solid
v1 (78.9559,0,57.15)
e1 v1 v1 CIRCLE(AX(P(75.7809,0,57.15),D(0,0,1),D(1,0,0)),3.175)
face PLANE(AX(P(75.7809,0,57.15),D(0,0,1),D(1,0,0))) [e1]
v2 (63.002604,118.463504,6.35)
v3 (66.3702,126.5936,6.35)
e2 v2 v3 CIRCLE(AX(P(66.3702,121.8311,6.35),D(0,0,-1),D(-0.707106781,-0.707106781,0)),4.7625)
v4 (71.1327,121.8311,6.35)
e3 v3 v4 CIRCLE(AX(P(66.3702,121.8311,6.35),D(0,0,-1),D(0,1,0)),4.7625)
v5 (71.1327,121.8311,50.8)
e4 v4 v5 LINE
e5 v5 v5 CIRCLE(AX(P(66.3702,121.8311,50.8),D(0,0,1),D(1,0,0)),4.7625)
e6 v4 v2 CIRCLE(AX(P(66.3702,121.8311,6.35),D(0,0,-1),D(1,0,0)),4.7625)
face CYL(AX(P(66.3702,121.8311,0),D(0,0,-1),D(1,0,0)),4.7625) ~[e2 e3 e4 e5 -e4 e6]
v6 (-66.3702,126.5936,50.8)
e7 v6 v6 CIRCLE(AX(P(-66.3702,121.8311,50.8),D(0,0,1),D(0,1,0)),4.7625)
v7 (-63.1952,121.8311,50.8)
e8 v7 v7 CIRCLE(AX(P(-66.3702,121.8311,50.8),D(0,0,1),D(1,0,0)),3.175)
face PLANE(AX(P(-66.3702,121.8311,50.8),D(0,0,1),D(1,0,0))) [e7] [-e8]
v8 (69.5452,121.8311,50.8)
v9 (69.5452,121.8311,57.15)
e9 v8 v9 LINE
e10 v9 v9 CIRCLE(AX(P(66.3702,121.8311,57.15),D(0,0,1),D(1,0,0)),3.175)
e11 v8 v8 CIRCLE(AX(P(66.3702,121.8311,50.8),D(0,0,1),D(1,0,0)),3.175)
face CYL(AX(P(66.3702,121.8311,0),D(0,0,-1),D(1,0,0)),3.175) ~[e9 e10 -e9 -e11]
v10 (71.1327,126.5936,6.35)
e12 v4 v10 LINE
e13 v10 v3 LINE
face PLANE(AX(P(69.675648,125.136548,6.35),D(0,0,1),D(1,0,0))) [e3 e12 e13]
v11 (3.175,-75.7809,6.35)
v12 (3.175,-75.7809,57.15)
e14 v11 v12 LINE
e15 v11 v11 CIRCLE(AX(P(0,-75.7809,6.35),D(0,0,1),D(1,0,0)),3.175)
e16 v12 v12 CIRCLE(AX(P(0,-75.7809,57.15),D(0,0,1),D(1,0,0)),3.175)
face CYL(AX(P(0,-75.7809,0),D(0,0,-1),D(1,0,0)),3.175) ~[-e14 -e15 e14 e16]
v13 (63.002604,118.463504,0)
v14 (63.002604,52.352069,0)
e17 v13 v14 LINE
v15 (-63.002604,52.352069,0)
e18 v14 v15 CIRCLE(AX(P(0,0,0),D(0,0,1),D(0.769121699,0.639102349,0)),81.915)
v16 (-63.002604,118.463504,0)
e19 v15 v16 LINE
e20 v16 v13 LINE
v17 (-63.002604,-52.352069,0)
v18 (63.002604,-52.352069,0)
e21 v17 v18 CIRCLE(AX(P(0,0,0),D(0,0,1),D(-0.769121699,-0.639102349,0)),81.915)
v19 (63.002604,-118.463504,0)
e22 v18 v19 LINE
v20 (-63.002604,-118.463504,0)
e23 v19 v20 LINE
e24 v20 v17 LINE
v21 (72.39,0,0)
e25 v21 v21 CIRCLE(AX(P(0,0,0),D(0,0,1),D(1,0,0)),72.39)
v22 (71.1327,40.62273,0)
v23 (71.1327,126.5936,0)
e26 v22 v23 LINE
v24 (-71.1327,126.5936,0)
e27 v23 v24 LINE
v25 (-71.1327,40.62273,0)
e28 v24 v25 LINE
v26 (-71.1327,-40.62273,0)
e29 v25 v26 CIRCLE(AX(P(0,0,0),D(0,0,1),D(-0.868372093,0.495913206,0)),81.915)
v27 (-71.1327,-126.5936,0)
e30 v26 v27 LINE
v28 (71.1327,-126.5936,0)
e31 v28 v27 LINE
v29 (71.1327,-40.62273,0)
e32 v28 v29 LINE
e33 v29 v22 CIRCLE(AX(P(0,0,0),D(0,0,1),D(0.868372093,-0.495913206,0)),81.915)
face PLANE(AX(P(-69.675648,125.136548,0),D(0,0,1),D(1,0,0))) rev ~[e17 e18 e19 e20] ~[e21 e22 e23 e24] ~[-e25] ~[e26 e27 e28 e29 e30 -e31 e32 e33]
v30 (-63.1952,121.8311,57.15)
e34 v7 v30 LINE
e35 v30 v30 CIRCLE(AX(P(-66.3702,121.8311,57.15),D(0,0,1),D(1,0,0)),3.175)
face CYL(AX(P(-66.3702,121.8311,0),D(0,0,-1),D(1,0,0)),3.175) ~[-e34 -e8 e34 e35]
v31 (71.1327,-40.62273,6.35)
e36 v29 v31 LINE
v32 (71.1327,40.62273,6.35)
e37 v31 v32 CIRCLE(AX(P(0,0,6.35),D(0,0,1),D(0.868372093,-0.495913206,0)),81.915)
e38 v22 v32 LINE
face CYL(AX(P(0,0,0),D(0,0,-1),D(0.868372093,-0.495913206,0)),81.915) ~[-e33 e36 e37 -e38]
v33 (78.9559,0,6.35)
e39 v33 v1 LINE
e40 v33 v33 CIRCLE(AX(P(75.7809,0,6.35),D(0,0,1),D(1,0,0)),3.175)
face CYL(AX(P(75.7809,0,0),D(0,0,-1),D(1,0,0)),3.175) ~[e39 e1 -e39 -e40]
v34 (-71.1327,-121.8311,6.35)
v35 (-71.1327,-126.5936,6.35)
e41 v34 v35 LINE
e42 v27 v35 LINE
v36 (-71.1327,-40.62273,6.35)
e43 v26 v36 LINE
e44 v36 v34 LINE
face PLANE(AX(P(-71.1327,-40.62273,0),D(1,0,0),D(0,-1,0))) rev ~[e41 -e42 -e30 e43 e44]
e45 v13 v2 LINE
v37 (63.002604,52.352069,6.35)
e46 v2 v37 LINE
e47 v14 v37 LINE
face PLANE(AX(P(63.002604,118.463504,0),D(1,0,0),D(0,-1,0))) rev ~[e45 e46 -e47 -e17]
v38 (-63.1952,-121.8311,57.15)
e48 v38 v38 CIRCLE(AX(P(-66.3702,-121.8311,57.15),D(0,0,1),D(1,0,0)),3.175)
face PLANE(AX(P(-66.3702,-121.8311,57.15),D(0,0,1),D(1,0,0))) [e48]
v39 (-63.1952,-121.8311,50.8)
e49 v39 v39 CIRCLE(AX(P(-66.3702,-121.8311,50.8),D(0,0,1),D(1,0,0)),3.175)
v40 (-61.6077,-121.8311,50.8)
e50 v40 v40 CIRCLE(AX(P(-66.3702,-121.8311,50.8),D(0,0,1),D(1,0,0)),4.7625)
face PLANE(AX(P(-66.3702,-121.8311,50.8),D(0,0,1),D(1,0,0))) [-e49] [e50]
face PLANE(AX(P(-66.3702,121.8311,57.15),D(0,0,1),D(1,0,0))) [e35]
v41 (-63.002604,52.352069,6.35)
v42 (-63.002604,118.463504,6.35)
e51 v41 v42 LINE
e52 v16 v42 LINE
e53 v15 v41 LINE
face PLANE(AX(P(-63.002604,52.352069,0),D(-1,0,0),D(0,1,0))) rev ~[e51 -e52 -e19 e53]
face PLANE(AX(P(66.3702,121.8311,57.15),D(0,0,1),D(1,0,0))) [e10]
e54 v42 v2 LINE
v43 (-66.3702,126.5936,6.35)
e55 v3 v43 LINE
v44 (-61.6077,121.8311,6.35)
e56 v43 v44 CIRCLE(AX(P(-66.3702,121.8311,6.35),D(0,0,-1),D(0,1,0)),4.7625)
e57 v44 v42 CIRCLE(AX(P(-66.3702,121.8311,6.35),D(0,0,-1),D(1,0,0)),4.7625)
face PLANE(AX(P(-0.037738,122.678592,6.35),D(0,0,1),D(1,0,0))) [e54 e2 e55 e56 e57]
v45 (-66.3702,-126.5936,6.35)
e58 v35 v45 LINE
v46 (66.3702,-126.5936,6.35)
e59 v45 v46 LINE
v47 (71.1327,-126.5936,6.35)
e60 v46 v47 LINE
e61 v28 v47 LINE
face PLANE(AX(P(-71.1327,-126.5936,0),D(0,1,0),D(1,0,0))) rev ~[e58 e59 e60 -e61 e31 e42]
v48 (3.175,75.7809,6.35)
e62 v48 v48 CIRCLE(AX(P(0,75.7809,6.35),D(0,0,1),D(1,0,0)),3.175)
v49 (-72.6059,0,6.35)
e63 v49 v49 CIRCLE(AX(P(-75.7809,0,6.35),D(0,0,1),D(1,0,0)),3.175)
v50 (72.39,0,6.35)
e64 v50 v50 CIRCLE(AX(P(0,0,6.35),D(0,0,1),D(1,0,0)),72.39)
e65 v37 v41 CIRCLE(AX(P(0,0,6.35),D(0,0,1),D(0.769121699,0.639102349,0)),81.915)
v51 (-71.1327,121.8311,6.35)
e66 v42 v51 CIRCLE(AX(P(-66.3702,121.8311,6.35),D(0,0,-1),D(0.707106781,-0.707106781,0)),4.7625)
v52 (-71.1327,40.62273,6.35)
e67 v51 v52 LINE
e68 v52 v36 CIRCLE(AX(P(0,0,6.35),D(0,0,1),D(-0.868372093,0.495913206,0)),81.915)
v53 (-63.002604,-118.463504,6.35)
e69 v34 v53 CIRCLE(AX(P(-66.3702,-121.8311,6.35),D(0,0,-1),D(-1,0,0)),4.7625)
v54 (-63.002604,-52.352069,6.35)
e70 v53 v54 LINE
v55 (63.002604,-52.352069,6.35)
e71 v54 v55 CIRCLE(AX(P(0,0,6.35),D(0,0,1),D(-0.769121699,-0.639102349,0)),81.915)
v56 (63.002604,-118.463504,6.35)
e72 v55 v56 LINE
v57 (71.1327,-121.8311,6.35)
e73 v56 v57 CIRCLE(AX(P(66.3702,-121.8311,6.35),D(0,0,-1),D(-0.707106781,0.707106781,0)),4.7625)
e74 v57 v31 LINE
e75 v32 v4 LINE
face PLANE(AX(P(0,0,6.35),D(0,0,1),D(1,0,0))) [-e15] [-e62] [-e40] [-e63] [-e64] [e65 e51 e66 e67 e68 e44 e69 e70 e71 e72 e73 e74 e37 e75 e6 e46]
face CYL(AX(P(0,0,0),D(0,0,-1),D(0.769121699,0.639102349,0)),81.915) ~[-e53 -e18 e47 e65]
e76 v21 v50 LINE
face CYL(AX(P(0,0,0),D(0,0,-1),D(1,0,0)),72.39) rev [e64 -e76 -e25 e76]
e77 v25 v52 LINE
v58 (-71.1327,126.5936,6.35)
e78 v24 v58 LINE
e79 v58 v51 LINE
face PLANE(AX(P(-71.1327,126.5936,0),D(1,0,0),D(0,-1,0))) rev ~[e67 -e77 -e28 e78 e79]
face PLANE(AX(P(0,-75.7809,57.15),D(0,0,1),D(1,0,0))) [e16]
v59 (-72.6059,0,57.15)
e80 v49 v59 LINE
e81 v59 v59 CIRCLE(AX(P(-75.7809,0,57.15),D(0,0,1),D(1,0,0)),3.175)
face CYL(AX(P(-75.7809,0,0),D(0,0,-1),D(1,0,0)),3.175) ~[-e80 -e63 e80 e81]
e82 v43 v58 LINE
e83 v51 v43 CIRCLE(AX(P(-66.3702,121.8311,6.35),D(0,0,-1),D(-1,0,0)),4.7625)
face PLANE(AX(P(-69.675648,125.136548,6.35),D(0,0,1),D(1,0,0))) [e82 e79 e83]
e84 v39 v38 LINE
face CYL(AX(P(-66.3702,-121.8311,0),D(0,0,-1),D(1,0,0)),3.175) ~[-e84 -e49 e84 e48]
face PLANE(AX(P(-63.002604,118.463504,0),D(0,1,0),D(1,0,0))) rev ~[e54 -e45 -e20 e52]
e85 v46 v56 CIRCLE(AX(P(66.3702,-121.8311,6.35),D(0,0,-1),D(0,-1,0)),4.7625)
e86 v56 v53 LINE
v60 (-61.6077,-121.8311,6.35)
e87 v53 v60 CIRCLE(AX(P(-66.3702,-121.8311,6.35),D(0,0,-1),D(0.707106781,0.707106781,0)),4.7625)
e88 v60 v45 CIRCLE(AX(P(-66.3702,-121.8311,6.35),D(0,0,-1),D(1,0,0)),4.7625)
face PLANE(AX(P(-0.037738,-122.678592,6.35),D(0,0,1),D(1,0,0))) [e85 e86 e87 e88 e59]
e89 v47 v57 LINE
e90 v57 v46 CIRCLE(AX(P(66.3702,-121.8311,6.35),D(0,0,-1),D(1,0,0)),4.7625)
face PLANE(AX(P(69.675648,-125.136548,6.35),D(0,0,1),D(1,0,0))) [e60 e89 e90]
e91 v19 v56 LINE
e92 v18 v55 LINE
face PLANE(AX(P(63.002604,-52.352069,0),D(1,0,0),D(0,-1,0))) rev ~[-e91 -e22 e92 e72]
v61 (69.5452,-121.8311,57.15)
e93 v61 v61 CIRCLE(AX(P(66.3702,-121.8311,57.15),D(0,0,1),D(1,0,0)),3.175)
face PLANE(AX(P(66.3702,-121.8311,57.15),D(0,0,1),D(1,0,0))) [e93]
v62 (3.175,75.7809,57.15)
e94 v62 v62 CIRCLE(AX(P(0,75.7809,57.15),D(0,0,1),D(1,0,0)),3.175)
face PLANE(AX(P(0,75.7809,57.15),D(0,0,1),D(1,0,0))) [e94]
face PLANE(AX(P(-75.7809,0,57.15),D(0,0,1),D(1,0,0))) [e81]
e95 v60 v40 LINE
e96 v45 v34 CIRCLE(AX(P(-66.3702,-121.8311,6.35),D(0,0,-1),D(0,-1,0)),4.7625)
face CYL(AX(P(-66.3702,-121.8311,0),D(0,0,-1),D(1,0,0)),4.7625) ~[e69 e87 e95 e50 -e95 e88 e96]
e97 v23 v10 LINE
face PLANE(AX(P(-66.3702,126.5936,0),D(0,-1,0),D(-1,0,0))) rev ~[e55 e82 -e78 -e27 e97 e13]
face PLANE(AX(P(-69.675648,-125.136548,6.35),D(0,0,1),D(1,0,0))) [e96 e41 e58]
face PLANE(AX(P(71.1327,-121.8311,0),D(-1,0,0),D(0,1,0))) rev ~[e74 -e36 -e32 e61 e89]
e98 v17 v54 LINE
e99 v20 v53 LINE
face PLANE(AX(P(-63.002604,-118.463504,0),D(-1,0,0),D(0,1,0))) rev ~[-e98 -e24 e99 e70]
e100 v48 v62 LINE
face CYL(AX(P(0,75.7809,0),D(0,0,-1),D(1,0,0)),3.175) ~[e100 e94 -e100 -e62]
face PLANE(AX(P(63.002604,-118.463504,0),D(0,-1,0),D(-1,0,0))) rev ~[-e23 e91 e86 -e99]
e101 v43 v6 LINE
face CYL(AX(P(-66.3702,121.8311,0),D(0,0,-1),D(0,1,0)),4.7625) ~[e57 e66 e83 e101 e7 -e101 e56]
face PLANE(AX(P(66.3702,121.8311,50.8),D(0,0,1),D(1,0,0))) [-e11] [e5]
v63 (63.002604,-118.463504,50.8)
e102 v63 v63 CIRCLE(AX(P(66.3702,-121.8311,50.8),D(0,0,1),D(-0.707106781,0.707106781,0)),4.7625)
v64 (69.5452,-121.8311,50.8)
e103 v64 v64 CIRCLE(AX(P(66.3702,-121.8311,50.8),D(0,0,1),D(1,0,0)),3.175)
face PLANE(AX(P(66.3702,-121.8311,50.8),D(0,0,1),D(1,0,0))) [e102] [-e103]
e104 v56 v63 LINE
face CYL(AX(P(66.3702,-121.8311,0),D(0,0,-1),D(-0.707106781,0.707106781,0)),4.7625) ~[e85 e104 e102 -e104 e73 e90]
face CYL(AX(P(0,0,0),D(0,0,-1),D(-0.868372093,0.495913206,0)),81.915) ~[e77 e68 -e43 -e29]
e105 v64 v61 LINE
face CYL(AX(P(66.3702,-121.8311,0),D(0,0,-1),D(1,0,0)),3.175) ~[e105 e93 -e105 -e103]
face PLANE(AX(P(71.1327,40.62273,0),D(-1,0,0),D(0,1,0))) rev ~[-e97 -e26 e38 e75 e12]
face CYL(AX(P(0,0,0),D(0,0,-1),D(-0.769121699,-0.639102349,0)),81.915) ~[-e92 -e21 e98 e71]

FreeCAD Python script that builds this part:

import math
import FreeCAD as App
import Part
import Sketcher
from FreeCAD import Vector
Q = App.Units.Quantity

doc = App.newDocument("Part")
body = doc.addObject("PartDesign::Body", "Body")

# Sketch on XY plane
sketch1 = body.newObject("Sketcher::SketchObject", "Sketch")
sketch1.AttachmentSupport = (doc.getObject("XY_Plane"), [""])
sketch1.MapMode = "FlatFace"
sketch1.addGeometry(Part.LineSegment(Vector(-63, 52.4, 0), Vector(-63, 118.5, 0)), False)
sketch1.addGeometry(Part.ArcOfCircle(Part.Circle(Vector(-66.4, 121.8, 0), Vector(0, 0, 1), 4.8), math.radians(180), math.radians(315)), False)
sketch1.addGeometry(Part.LineSegment(Vector(-71.1, 121.8, 0), Vector(-71.1, 40.6, 0)), False)
sketch1.addGeometry(Part.ArcOfCircle(Part.Circle(Vector(0, 0, 0), Vector(0, 0, 1), 81.9), math.radians(150), math.radians(210)), False)
sketch1.addGeometry(Part.LineSegment(Vector(-71.1, -40.6, 0), Vector(-71.1, -121.8, 0)), False)
sketch1.addGeometry(Part.ArcOfCircle(Part.Circle(Vector(-66.4, -121.8, 0), Vector(0, 0, 1), 4.8), math.radians(45), math.radians(180)), False)
sketch1.addGeometry(Part.LineSegment(Vector(-63, -118.5, 0), Vector(-63, -52.4, 0)), False)
sketch1.addGeometry(Part.ArcOfCircle(Part.Circle(Vector(0, 0, 0), Vector(0, 0, 1), 81.9), math.radians(-140), math.radians(-40)), False)
sketch1.addGeometry(Part.LineSegment(Vector(63, -52.4, 0), Vector(63, -118.5, 0)), False)
sketch1.addGeometry(Part.ArcOfCircle(Part.Circle(Vector(66.4, -121.8, 0), Vector(0, 0, 1), 4.8), math.radians(0), math.radians(135)), False)
sketch1.addGeometry(Part.LineSegment(Vector(71.1, -121.8, 0), Vector(71.1, -40.6, 0)), False)
sketch1.addGeometry(Part.ArcOfCircle(Part.Circle(Vector(0, 0, 0), Vector(0, 0, 1), 81.9), math.radians(-30), math.radians(30)), False)
sketch1.addGeometry(Part.LineSegment(Vector(71.1, 40.6, 0), Vector(71.1, 121.8, 0)), False)
sketch1.addGeometry(Part.ArcOfCircle(Part.Circle(Vector(66.4, 121.8, 0), Vector(0, 0, 1), 4.8), math.radians(-135), math.radians(0)), False)
sketch1.addGeometry(Part.LineSegment(Vector(63, 118.5, 0), Vector(63, 52.4, 0)), False)
sketch1.addGeometry(Part.ArcOfCircle(Part.Circle(Vector(0, 0, 0), Vector(0, 0, 1), 81.9), math.radians(40), math.radians(140)), False)
sketch1.addGeometry(Part.Circle(Vector(0, -75.8, 0), Vector(0, 0, 1), 3.2), False)
sketch1.addGeometry(Part.Circle(Vector(-75.8, 0, 0), Vector(0, 0, 1), 3.2), False)
sketch1.addGeometry(Part.Circle(Vector(0, 0, 0), Vector(0, 0, 1), 72.4), False)
sketch1.addGeometry(Part.Circle(Vector(75.8, 0, 0), Vector(0, 0, 1), 3.2), False)
sketch1.addGeometry(Part.Circle(Vector(0, 75.8, 0), Vector(0, 0, 1), 3.2), False)
sketch1.addConstraint(Sketcher.Constraint("Coincident", 0, 2, 1, 2))
sketch1.addConstraint(Sketcher.Constraint("Tangent", 1, 1, 2, 1))
sketch1.addConstraint(Sketcher.Constraint("Coincident", 2, 2, 3, 1))
sketch1.addConstraint(Sketcher.Constraint("Coincident", 3, 2, 4, 1))
sketch1.addConstraint(Sketcher.Constraint("Tangent", 4, 2, 5, 2))
sketch1.addConstraint(Sketcher.Constraint("Coincident", 5, 1, 6, 1))
sketch1.addConstraint(Sketcher.Constraint("Coincident", 6, 2, 7, 1))
sketch1.addConstraint(Sketcher.Constraint("Coincident", 7, 2, 8, 1))
sketch1.addConstraint(Sketcher.Constraint("Coincident", 8, 2, 9, 2))
sketch1.addConstraint(Sketcher.Constraint("Tangent", 9, 1, 10, 1))
sketch1.addConstraint(Sketcher.Constraint("Coincident", 10, 2, 11, 1))
sketch1.addConstraint(Sketcher.Constraint("Coincident", 11, 2, 12, 1))
sketch1.addConstraint(Sketcher.Constraint("Tangent", 12, 2, 13, 2))
sketch1.addConstraint(Sketcher.Constraint("Coincident", 13, 1, 14, 1))
sketch1.addConstraint(Sketcher.Constraint("Coincident", 14, 2, 15, 1))
sketch1.addConstraint(Sketcher.Constraint("Coincident", 15, 2, 0, 1))
sketch1.addConstraint(Sketcher.Constraint("Vertical", 0))
sketch1.addConstraint(Sketcher.Constraint("Vertical", 2))
sketch1.addConstraint(Sketcher.Constraint("Vertical", 4))
sketch1.addConstraint(Sketcher.Constraint("Vertical", 6))
sketch1.addConstraint(Sketcher.Constraint("Vertical", 8))
sketch1.addConstraint(Sketcher.Constraint("Vertical", 10))
sketch1.addConstraint(Sketcher.Constraint("Vertical", 12))
sketch1.addConstraint(Sketcher.Constraint("Vertical", 14))
sketch1.addConstraint(Sketcher.Constraint("Coincident", 3, 3, -1, 1))
sketch1.addConstraint(Sketcher.Constraint("Coincident", 7, 3, -1, 1))
sketch1.addConstraint(Sketcher.Constraint("Coincident", 11, 3, -1, 1))
sketch1.addConstraint(Sketcher.Constraint("Coincident", 15, 3, -1, 1))
sketch1.addConstraint(Sketcher.Constraint("Coincident", 18, 3, -1, 1))
sketch1.addConstraint(Sketcher.Constraint("Equal", 1, 5))
sketch1.addConstraint(Sketcher.Constraint("Equal", 3, 7))
sketch1.addConstraint(Sketcher.Constraint("Equal", 5, 9))
sketch1.addConstraint(Sketcher.Constraint("Equal", 7, 11))
sketch1.addConstraint(Sketcher.Constraint("Equal", 9, 13))
sketch1.addConstraint(Sketcher.Constraint("Equal", 11, 15))
sketch1.addConstraint(Sketcher.Constraint("Equal", 16, 17))
sketch1.addConstraint(Sketcher.Constraint("Equal", 17, 19))
sketch1.addConstraint(Sketcher.Constraint("Equal", 19, 20))
sketch1.addConstraint(Sketcher.Constraint("Symmetric", 1, 3, 9, 3, -1, 1))
sketch1.addConstraint(Sketcher.Constraint("Symmetric", 5, 3, 13, 3, -1, 1))
sketch1.addConstraint(Sketcher.Constraint("Symmetric", 17, 3, 19, 3, -1, 1))
sketch1.addConstraint(Sketcher.Constraint("Symmetric", 16, 3, 20, 3, -1, 1))
sketch1.addConstraint(Sketcher.Constraint("Symmetric", 5, 3, 9, 3, -2))
sketch1.addConstraint(Sketcher.Constraint("PointOnObject", 16, 3, -2))
sketch1.addConstraint(Sketcher.Constraint("PointOnObject", 17, 3, -1))
sketch1.addConstraint(Sketcher.Constraint("Horizontal", 6, 2, 7, 2))
sketch1.addConstraint(Sketcher.Constraint("Horizontal", 0, 2, 13, 1))
sketch1.addConstraint(Sketcher.Constraint("Vertical", 0, 2, 5, 1))
sketch1.addConstraint(Sketcher.Constraint("Diameter", 18, Q("5.7 in")))
sketch1.addConstraint(Sketcher.Constraint("Diameter", 16, Q("0.25 in")))
sketch1.addConstraint(Sketcher.Constraint("Radius", 1, Q("0.1875 in")))
sketch1.addConstraint(Sketcher.Constraint("Radius", 3, Q("3.225 in")))
sketch1.addConstraint(Sketcher.Constraint("DistanceX", 1, 3, -1, 1, Q("2.613 in")))
sketch1.addConstraint(Sketcher.Constraint("DistanceY", 5, 3, 1, 3, Q("9.593 in")))
sketch1.addConstraint(Sketcher.Constraint("DistanceY", 5, 3, 16, 3, Q("1.813 in")))
sketch1.addConstraint(Sketcher.Constraint("DistanceX", 17, 3, 1, 1, Q("0.183 in")))
sketch1.addConstraint(Sketcher.Constraint("DistanceY", 0, 1, 0, 2, 66.111435))
pad1 = body.newObject("PartDesign::Pad", "Pad")
pad1.Profile = sketch1
pad1.Length = Q("0.25 in")
body2 = doc.addObject("PartDesign::Body", "Body001")

# Sketch on XY plane
sketch2 = body2.newObject("Sketcher::SketchObject", "Sketch001")
sketch2.AttachmentSupport = (doc.getObject("XY_Plane001"), [""])
sketch2.MapMode = "FlatFace"
sketch2.addGeometry(Part.ArcOfCircle(Part.Circle(Vector(-66.4, 121.8, 0), Vector(0, 0, 1), 4.8), math.radians(-45), math.radians(0)), False)
sketch2.addGeometry(Part.LineSegment(Vector(-63, 118.5, 0), Vector(63, 118.5, 0)), False)
sketch2.addGeometry(Part.ArcOfCircle(Part.Circle(Vector(66.4, 121.8, 0), Vector(0, 0, 1), 4.8), math.radians(90), math.radians(225)), False)
sketch2.addGeometry(Part.LineSegment(Vector(66.4, 126.6, 0), Vector(-66.4, 126.6, 0)), False)
sketch2.addGeometry(Part.ArcOfCircle(Part.Circle(Vector(-66.4, 121.8, 0), Vector(0, 0, 1), 4.8), math.radians(0), math.radians(90)), False)
sketch2.addConstraint(Sketcher.Constraint("Coincident", 0, 1, 1, 1))
sketch2.addConstraint(Sketcher.Constraint("Coincident", 1, 2, 2, 2))
sketch2.addConstraint(Sketcher.Constraint("Tangent", 2, 1, 3, 1))
sketch2.addConstraint(Sketcher.Constraint("Tangent", 3, 2, 4, 2))
sketch2.addConstraint(Sketcher.Constraint("Tangent", 4, 1, 0, 2))
sketch2.addConstraint(Sketcher.Constraint("Horizontal", 1))
sketch2.addConstraint(Sketcher.Constraint("Horizontal", 3))
sketch2.addConstraint(Sketcher.Constraint("Equal", 0, 2))
sketch2.addConstraint(Sketcher.Constraint("Equal", 2, 4))
sketch2.addConstraint(Sketcher.Constraint("Horizontal", 2, 3, 4, 1))
sketch2.addConstraint(Sketcher.Constraint("Radius", 0, Q("0.1875 in")))
sketch2.addConstraint(Sketcher.Constraint("DistanceX", 3, 2, 3, 1, Q("5.226 in")))
sketch2.addConstraint(Sketcher.Constraint("DistanceX", 0, 3, -1, 1, Q("2.613 in")))
sketch2.addConstraint(Sketcher.Constraint("DistanceY", -1, 1, 2, 1, Q("4.984 in")))
sketch2.addConstraint(Sketcher.Constraint("DistanceX", 1, 1, 1, 2, 126.005208))
pad2 = body2.newObject("PartDesign::Pad", "Pad001")
pad2.Profile = sketch2
pad2.Length = Q("0.25 in")
body3 = doc.addObject("PartDesign::Body", "Body002")

# Sketch on XY plane
sketch3 = body3.newObject("Sketcher::SketchObject", "Sketch002")
sketch3.AttachmentSupport = (doc.getObject("XY_Plane002"), [""])
sketch3.MapMode = "FlatFace"
sketch3.addGeometry(Part.LineSegment(Vector(63, -118.5, 0), Vector(-63, -118.5, 0)), False)
sketch3.addGeometry(Part.ArcOfCircle(Part.Circle(Vector(-66.4, -121.8, 0), Vector(0, 0, 1), 4.8), math.radians(0), math.radians(45)), False)
sketch3.addGeometry(Part.ArcOfCircle(Part.Circle(Vector(-66.4, -121.8, 0), Vector(0, 0, 1), 4.8), math.radians(-90), math.radians(0)), False)
sketch3.addGeometry(Part.LineSegment(Vector(-66.4, -126.6, 0), Vector(66.4, -126.6, 0)), False)
sketch3.addGeometry(Part.ArcOfCircle(Part.Circle(Vector(66.4, -121.8, 0), Vector(0, 0, 1), 4.8), math.radians(135), math.radians(270)), False)
sketch3.addConstraint(Sketcher.Constraint("Coincident", 0, 2, 1, 2))
sketch3.addConstraint(Sketcher.Constraint("Tangent", 1, 1, 2, 2))
sketch3.addConstraint(Sketcher.Constraint("Tangent", 2, 1, 3, 1))
sketch3.addConstraint(Sketcher.Constraint("Tangent", 3, 2, 4, 2))
sketch3.addConstraint(Sketcher.Constraint("Coincident", 4, 1, 0, 1))
sketch3.addConstraint(Sketcher.Constraint("Horizontal", 0))
sketch3.addConstraint(Sketcher.Constraint("Horizontal", 3))
sketch3.addConstraint(Sketcher.Constraint("Equal", 1, 2))
sketch3.addConstraint(Sketcher.Constraint("Equal", 2, 4))
sketch3.addConstraint(Sketcher.Constraint("Horizontal", 4, 3, 1, 1))
sketch3.addConstraint(Sketcher.Constraint("Radius", 1, Q("0.1875 in")))
sketch3.addConstraint(Sketcher.Constraint("DistanceX", 3, 1, 3, 2, Q("5.226 in")))
sketch3.addConstraint(Sketcher.Constraint("DistanceX", 1, 3, -1, 1, Q("2.613 in")))
sketch3.addConstraint(Sketcher.Constraint("DistanceY", 2, 1, -1, 1, Q("4.984 in")))
sketch3.addConstraint(Sketcher.Constraint("DistanceX", 0, 2, 0, 1, 126.005208))
pad3 = body3.newObject("PartDesign::Pad", "Pad002")
pad3.Profile = sketch3
pad3.Length = Q("0.25 in")
body4 = doc.addObject("PartDesign::Body", "Body003")

# Sketch on XY plane
sketch4 = body4.newObject("Sketcher::SketchObject", "Sketch003")
sketch4.AttachmentSupport = (doc.getObject("XY_Plane003"), [""])
sketch4.MapMode = "FlatFace"
sketch4.addGeometry(Part.ArcOfCircle(Part.Circle(Vector(-66.4, -121.8, 0), Vector(0, 0, 1), 4.8), math.radians(180), math.radians(270)), False)
sketch4.addGeometry(Part.LineSegment(Vector(-71.1, -121.8, 0), Vector(-71.1, -126.6, 0)), False)
sketch4.addGeometry(Part.LineSegment(Vector(-71.1, -126.6, 0), Vector(-66.4, -126.6, 0)), False)
sketch4.addConstraint(Sketcher.Constraint("Tangent", 0, 1, 1, 1))
sketch4.addConstraint(Sketcher.Constraint("Coincident", 1, 2, 2, 1))
sketch4.addConstraint(Sketcher.Constraint("Tangent", 2, 2, 0, 2))
sketch4.addConstraint(Sketcher.Constraint("Vertical", 1))
sketch4.addConstraint(Sketcher.Constraint("Horizontal", 2))
sketch4.addConstraint(Sketcher.Constraint("Radius", 0, Q("0.1875 in")))
sketch4.addConstraint(Sketcher.Constraint("DistanceX", 0, 3, -1, 1, Q("2.613 in")))
sketch4.addConstraint(Sketcher.Constraint("DistanceY", 1, 2, -1, 1, Q("4.984 in")))
pad4 = body4.newObject("PartDesign::Pad", "Pad003")
pad4.Profile = sketch4
pad4.Length = Q("0.25 in")
body5 = doc.addObject("PartDesign::Body", "Body004")

# Sketch on XY plane
sketch5 = body5.newObject("Sketcher::SketchObject", "Sketch004")
sketch5.AttachmentSupport = (doc.getObject("XY_Plane004"), [""])
sketch5.MapMode = "FlatFace"
sketch5.addGeometry(Part.LineSegment(Vector(71.1, -126.6, 0), Vector(71.1, -121.8, 0)), False)
sketch5.addGeometry(Part.ArcOfCircle(Part.Circle(Vector(66.4, -121.8, 0), Vector(0, 0, 1), 4.8), math.radians(-90), math.radians(0)), False)
sketch5.addGeometry(Part.LineSegment(Vector(66.4, -126.6, 0), Vector(71.1, -126.6, 0)), False)
sketch5.addConstraint(Sketcher.Constraint("Tangent", 0, 2, 1, 2))
sketch5.addConstraint(Sketcher.Constraint("Tangent", 1, 1, 2, 1))
sketch5.addConstraint(Sketcher.Constraint("Coincident", 2, 2, 0, 1))
sketch5.addConstraint(Sketcher.Constraint("Vertical", 0))
sketch5.addConstraint(Sketcher.Constraint("Horizontal", 2))
sketch5.addConstraint(Sketcher.Constraint("Radius", 1, Q("0.1875 in")))
sketch5.addConstraint(Sketcher.Constraint("DistanceX", -1, 1, 1, 3, Q("2.613 in")))
sketch5.addConstraint(Sketcher.Constraint("DistanceY", 1, 1, -1, 1, Q("4.984 in")))
pad5 = body5.newObject("PartDesign::Pad", "Pad004")
pad5.Profile = sketch5
pad5.Length = Q("0.25 in")
body6 = doc.addObject("PartDesign::Body", "Body005")

# Sketch on XY plane
sketch6 = body6.newObject("Sketcher::SketchObject", "Sketch005")
sketch6.AttachmentSupport = (doc.getObject("XY_Plane005"), [""])
sketch6.MapMode = "FlatFace"
sketch6.addGeometry(Part.LineSegment(Vector(-71.1, 126.6, 0), Vector(-71.1, 121.8, 0)), False)
sketch6.addGeometry(Part.ArcOfCircle(Part.Circle(Vector(-66.4, 121.8, 0), Vector(0, 0, 1), 4.8), math.radians(90), math.radians(180)), False)
sketch6.addGeometry(Part.LineSegment(Vector(-66.4, 126.6, 0), Vector(-71.1, 126.6, 0)), False)
sketch6.addConstraint(Sketcher.Constraint("Tangent", 0, 2, 1, 2))
sketch6.addConstraint(Sketcher.Constraint("Tangent", 1, 1, 2, 1))
sketch6.addConstraint(Sketcher.Constraint("Coincident", 2, 2, 0, 1))
sketch6.addConstraint(Sketcher.Constraint("Vertical", 0))
sketch6.addConstraint(Sketcher.Constraint("Horizontal", 2))
sketch6.addConstraint(Sketcher.Constraint("Radius", 1, Q("0.1875 in")))
sketch6.addConstraint(Sketcher.Constraint("DistanceX", 1, 3, -1, 1, Q("2.613 in")))
sketch6.addConstraint(Sketcher.Constraint("DistanceY", -1, 1, 1, 1, Q("4.984 in")))
pad6 = body6.newObject("PartDesign::Pad", "Pad005")
pad6.Profile = sketch6
pad6.Length = Q("0.25 in")
body7 = doc.addObject("PartDesign::Body", "Body006")

# Sketch on XY plane
sketch7 = body7.newObject("Sketcher::SketchObject", "Sketch006")
sketch7.AttachmentSupport = (doc.getObject("XY_Plane006"), [""])
sketch7.MapMode = "FlatFace"
sketch7.addGeometry(Part.ArcOfCircle(Part.Circle(Vector(66.4, 121.8, 0), Vector(0, 0, 1), 4.8), math.radians(0), math.radians(90)), False)
sketch7.addGeometry(Part.LineSegment(Vector(71.1, 121.8, 0), Vector(71.1, 126.6, 0)), False)
sketch7.addGeometry(Part.LineSegment(Vector(71.1, 126.6, 0), Vector(66.4, 126.6, 0)), False)
sketch7.addConstraint(Sketcher.Constraint("Tangent", 0, 1, 1, 1))
sketch7.addConstraint(Sketcher.Constraint("Coincident", 1, 2, 2, 1))
sketch7.addConstraint(Sketcher.Constraint("Tangent", 2, 2, 0, 2))
sketch7.addConstraint(Sketcher.Constraint("Vertical", 1))
sketch7.addConstraint(Sketcher.Constraint("Horizontal", 2))
sketch7.addConstraint(Sketcher.Constraint("Radius", 0, Q("0.1875 in")))
sketch7.addConstraint(Sketcher.Constraint("DistanceX", -1, 1, 0, 3, Q("2.613 in")))
sketch7.addConstraint(Sketcher.Constraint("DistanceY", -1, 1, 1, 2, Q("4.984 in")))
pad7 = body7.newObject("PartDesign::Pad", "Pad006")
pad7.Profile = sketch7
pad7.Length = Q("0.25 in")
body.AllowCompound = True
doc.recompute()

boolean = body.newObject("PartDesign::Boolean", "Boolean")
boolean.Type = "Fuse"
boolean.addObjects([body2])
doc.recompute()

boolean2 = body.newObject("PartDesign::Boolean", "Boolean001")
boolean2.Type = "Fuse"
boolean2.addObjects([body3])
doc.recompute()

boolean3 = body.newObject("PartDesign::Boolean", "Boolean002")
boolean3.Type = "Fuse"
boolean3.addObjects([body4])
doc.recompute()

boolean4 = body.newObject("PartDesign::Boolean", "Boolean003")
boolean4.Type = "Fuse"
boolean4.addObjects([body5])
doc.recompute()

boolean5 = body.newObject("PartDesign::Boolean", "Boolean004")
boolean5.Type = "Fuse"
boolean5.addObjects([body6])
doc.recompute()

boolean6 = body.newObject("PartDesign::Boolean", "Boolean005")
boolean6.Type = "Fuse"
boolean6.addObjects([body7])

# Sketch on XY plane
sketch8 = body.newObject("Sketcher::SketchObject", "Sketch007")
sketch8.AttachmentSupport = (doc.getObject("XY_Plane"), [""])
sketch8.MapMode = "FlatFace"
sketch8.addGeometry(Part.Circle(Vector(-66.4, 121.8, 0), Vector(0, 0, 1), 4.8), False)
sketch8.addGeometry(Part.Circle(Vector(-66.4, 121.8, 0), Vector(0, 0, 1), 3.2), False)
sketch8.addGeometry(Part.Circle(Vector(66.4, 121.8, 0), Vector(0, 0, 1), 4.8), False)
sketch8.addGeometry(Part.Circle(Vector(66.4, 121.8, 0), Vector(0, 0, 1), 3.2), False)
sketch8.addGeometry(Part.Circle(Vector(-66.4, -121.8, 0), Vector(0, 0, 1), 4.8), False)
sketch8.addGeometry(Part.Circle(Vector(-66.4, -121.8, 0), Vector(0, 0, 1), 3.2), False)
sketch8.addGeometry(Part.Circle(Vector(66.4, -121.8, 0), Vector(0, 0, 1), 4.8), False)
sketch8.addGeometry(Part.Circle(Vector(66.4, -121.8, 0), Vector(0, 0, 1), 3.2), False)
sketch8.addConstraint(Sketcher.Constraint("Coincident", 1, 3, 0, 3))
sketch8.addConstraint(Sketcher.Constraint("Coincident", 3, 3, 2, 3))
sketch8.addConstraint(Sketcher.Constraint("Coincident", 5, 3, 4, 3))
sketch8.addConstraint(Sketcher.Constraint("Coincident", 7, 3, 6, 3))
sketch8.addConstraint(Sketcher.Constraint("Equal", 0, 2))
sketch8.addConstraint(Sketcher.Constraint("Equal", 1, 3))
sketch8.addConstraint(Sketcher.Constraint("Equal", 2, 4))
sketch8.addConstraint(Sketcher.Constraint("Equal", 3, 5))
sketch8.addConstraint(Sketcher.Constraint("Equal", 4, 6))
sketch8.addConstraint(Sketcher.Constraint("Equal", 5, 7))
sketch8.addConstraint(Sketcher.Constraint("Symmetric", 2, 3, 4, 3, -1, 1))
sketch8.addConstraint(Sketcher.Constraint("Symmetric", 0, 3, 6, 3, -1, 1))
sketch8.addConstraint(Sketcher.Constraint("Symmetric", 0, 3, 2, 3, -2))
sketch8.addConstraint(Sketcher.Constraint("Diameter", 1, Q("0.25 in")))
sketch8.addConstraint(Sketcher.Constraint("Diameter", 0, Q("0.375 in")))
sketch8.addConstraint(Sketcher.Constraint("DistanceX", 0, 3, -1, 1, Q("2.613 in")))
sketch8.addConstraint(Sketcher.Constraint("DistanceY", 4, 3, 0, 3, Q("9.593 in")))
pad8 = body.newObject("PartDesign::Pad", "Pad007")
pad8.Profile = sketch8
pad8.Length = Q("2 in")

# Sketch on XY plane
sketch9 = body.newObject("Sketcher::SketchObject", "Sketch008")
sketch9.AttachmentSupport = (doc.getObject("XY_Plane"), [""])
sketch9.MapMode = "FlatFace"
sketch9.addGeometry(Part.Circle(Vector(66.4, -121.8, 0), Vector(0, 0, 1), 3.2), False)
sketch9.addGeometry(Part.Circle(Vector(-66.4, -121.8, 0), Vector(0, 0, 1), 3.2), False)
sketch9.addGeometry(Part.Circle(Vector(66.4, 121.8, 0), Vector(0, 0, 1), 3.2), False)
sketch9.addGeometry(Part.Circle(Vector(-66.4, 121.8, 0), Vector(0, 0, 1), 3.2), False)
sketch9.addConstraint(Sketcher.Constraint("Equal", 0, 1))
sketch9.addConstraint(Sketcher.Constraint("Equal", 1, 2))
sketch9.addConstraint(Sketcher.Constraint("Equal", 2, 3))
sketch9.addConstraint(Sketcher.Constraint("Symmetric", 1, 3, 2, 3, -1, 1))
sketch9.addConstraint(Sketcher.Constraint("Symmetric", 0, 3, 3, 3, -1, 1))
sketch9.addConstraint(Sketcher.Constraint("Symmetric", 0, 3, 1, 3, -2))
sketch9.addConstraint(Sketcher.Constraint("Diameter", 0, Q("0.25 in")))
sketch9.addConstraint(Sketcher.Constraint("DistanceX", -1, 1, 0, 3, Q("2.613 in")))
sketch9.addConstraint(Sketcher.Constraint("DistanceY", 0, 3, 2, 3, Q("9.593 in")))
pad9 = body.newObject("PartDesign::Pad", "Pad008")
pad9.Profile = sketch9
pad9.Length = Q("2.25 in")

# Sketch on XY plane
sketch10 = body.newObject("Sketcher::SketchObject", "Sketch009")
sketch10.AttachmentSupport = (doc.getObject("XY_Plane"), [""])
sketch10.MapMode = "FlatFace"
sketch10.addGeometry(Part.Circle(Vector(0, 75.8, 0), Vector(0, 0, 1), 3.2), False)
sketch10.addGeometry(Part.Circle(Vector(-75.8, 0, 0), Vector(0, 0, 1), 3.2), False)
sketch10.addGeometry(Part.Circle(Vector(75.8, 0, 0), Vector(0, 0, 1), 3.2), False)
sketch10.addGeometry(Part.Circle(Vector(0, -75.8, 0), Vector(0, 0, 1), 3.2), False)
sketch10.addConstraint(Sketcher.Constraint("Equal", 0, 1))
sketch10.addConstraint(Sketcher.Constraint("Equal", 1, 2))
sketch10.addConstraint(Sketcher.Constraint("Equal", 2, 3))
sketch10.addConstraint(Sketcher.Constraint("Symmetric", 1, 3, 2, 3, -1, 1))
sketch10.addConstraint(Sketcher.Constraint("Symmetric", 0, 3, 3, 3, -1, 1))
sketch10.addConstraint(Sketcher.Constraint("PointOnObject", 0, 3, -2))
sketch10.addConstraint(Sketcher.Constraint("PointOnObject", 1, 3, -1))
sketch10.addConstraint(Sketcher.Constraint("Diameter", 0, Q("0.25 in")))
sketch10.addConstraint(Sketcher.Constraint("DistanceX", 1, 3, 2, 3, Q("5.967 in")))
sketch10.addConstraint(Sketcher.Constraint("DistanceY", 3, 3, 0, 3, Q("5.967 in")))
pad10 = body.newObject("PartDesign::Pad", "Pad009")
pad10.Profile = sketch10
pad10.Length = Q("2.25 in")

doc.recompute()
